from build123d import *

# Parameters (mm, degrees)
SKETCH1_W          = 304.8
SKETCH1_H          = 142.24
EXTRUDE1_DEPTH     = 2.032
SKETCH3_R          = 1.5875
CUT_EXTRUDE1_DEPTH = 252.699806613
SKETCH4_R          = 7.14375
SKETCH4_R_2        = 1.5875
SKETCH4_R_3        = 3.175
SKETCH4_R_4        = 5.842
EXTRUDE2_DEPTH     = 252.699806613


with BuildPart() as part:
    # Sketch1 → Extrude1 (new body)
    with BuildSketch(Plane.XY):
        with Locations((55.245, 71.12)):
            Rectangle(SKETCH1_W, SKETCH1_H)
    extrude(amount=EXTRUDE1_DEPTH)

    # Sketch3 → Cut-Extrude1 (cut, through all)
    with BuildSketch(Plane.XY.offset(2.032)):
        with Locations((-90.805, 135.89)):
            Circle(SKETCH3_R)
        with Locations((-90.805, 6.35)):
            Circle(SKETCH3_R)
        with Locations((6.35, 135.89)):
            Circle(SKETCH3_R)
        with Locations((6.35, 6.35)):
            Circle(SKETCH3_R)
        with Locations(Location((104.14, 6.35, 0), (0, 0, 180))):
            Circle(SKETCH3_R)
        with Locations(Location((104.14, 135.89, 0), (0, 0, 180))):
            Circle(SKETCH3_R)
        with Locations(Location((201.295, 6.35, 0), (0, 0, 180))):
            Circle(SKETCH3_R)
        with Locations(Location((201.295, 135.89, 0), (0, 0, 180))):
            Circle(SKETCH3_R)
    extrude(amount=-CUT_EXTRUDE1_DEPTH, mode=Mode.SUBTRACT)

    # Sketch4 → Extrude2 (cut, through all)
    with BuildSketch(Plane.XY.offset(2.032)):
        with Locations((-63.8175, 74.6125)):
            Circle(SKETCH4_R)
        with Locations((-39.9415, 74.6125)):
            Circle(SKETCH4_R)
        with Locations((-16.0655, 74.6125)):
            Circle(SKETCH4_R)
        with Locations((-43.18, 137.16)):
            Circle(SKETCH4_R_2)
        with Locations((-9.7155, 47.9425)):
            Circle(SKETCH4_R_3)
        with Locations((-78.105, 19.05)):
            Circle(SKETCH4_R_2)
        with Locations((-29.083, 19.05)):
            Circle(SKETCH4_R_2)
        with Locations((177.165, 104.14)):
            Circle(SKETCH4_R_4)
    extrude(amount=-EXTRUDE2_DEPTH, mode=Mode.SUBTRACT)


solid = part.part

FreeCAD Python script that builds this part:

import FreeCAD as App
import Part
import Sketcher
Q = App.Units.Quantity

doc = App.newDocument("Part")
body = doc.addObject("PartDesign::Body", "Body")

sketch1 = doc.addObject("Sketcher::SketchObject", "Sketch")
body.addObject(sketch1)
sketch1.AttachmentSupport = (doc.XY_Plane, [""])
sketch1.MapMode = "FlatFace"
sketch1.addGeometry(Part.LineSegment(App.Vector(-97.155, 142.24, 0), App.Vector(-97.155, 0, 0)), False)
sketch1.addGeometry(Part.LineSegment(App.Vector(-97.155, 0, 0), App.Vector(207.645, 0, 0)), False)
sketch1.addGeometry(Part.LineSegment(App.Vector(207.645, 0, 0), App.Vector(207.645, 142.24, 0)), False)
sketch1.addGeometry(Part.LineSegment(App.Vector(207.645, 142.24, 0), App.Vector(-97.155, 142.24, 0)), False)
sketch1.addConstraint(Sketcher.Constraint("Coincident", 0, 2, 1, 1))
sketch1.addConstraint(Sketcher.Constraint("Coincident", 1, 2, 2, 1))
sketch1.addConstraint(Sketcher.Constraint("Coincident", 2, 2, 3, 1))
sketch1.addConstraint(Sketcher.Constraint("Coincident", 3, 2, 0, 1))
sketch1.addConstraint(Sketcher.Constraint("Vertical", 0))
sketch1.addConstraint(Sketcher.Constraint("Horizontal", 1))
sketch1.addConstraint(Sketcher.Constraint("Vertical", 2))
sketch1.addConstraint(Sketcher.Constraint("Horizontal", 3))
sketch1.addConstraint(Sketcher.Constraint("PointOnObject", 0, 2, -1))
sketch1.addConstraint(Sketcher.Constraint("DistanceX", 1, 1, 1, 2, Q("12 in")))
sketch1.addConstraint(Sketcher.Constraint("DistanceY", 0, 2, 0, 1, Q("5.6 in")))
sketch1.addConstraint(Sketcher.Constraint("DistanceX", 0, 2, -1, 1, Q("3.825 in")))
pad1 = doc.addObject("PartDesign::Pad", "Pad")
body.addObject(pad1)
pad1.Profile = sketch1
pad1.Length = Q("0.08 in")

sketch2 = doc.addObject("Sketcher::SketchObject", "Sketch001")
body.addObject(sketch2)
sketch2.AttachmentSupport = (doc.XY_Plane, [""])
sketch2.MapMode = "FlatFace"
sketch2.AttachmentOffset = App.Placement(App.Vector(0, 0, 0.08 * 25.4), App.Rotation())
sketch2.addGeometry(Part.Circle(App.Vector(-90.805, 135.89, 0), App.Vector(0, 0, 1), 1.5875), False)
sketch2.addGeometry(Part.Circle(App.Vector(-90.805, 6.35, 0), App.Vector(0, 0, 1), 1.5875), False)
sketch2.addGeometry(Part.Circle(App.Vector(6.35, 135.89, 0), App.Vector(0, 0, 1), 1.5875), False)
sketch2.addGeometry(Part.Circle(App.Vector(6.35, 6.35, 0), App.Vector(0, 0, 1), 1.5875), False)
sketch2.addGeometry(Part.Circle(App.Vector(104.14, 6.35, 0), App.Vector(0, 0, 1), 1.5875), False)
sketch2.addGeometry(Part.Circle(App.Vector(104.14, 135.89, 0), App.Vector(0, 0, 1), 1.5875), False)
sketch2.addGeometry(Part.Circle(App.Vector(201.295, 6.35, 0), App.Vector(0, 0, 1), 1.5875), False)
sketch2.addGeometry(Part.Circle(App.Vector(201.295, 135.89, 0), App.Vector(0, 0, 1), 1.5875), False)
sketch2.addConstraint(Sketcher.Constraint("Equal", 0, 1))
sketch2.addConstraint(Sketcher.Constraint("Equal", 1, 2))
sketch2.addConstraint(Sketcher.Constraint("Equal", 2, 3))
sketch2.addConstraint(Sketcher.Constraint("Equal", 3, 4))
sketch2.addConstraint(Sketcher.Constraint("Equal", 4, 5))
sketch2.addConstraint(Sketcher.Constraint("Equal", 5, 6))
sketch2.addConstraint(Sketcher.Constraint("Equal", 6, 7))
sketch2.addConstraint(Sketcher.Constraint("Horizontal", 0, 3, 2, 3))
sketch2.addConstraint(Sketcher.Constraint("Horizontal", 1, 3, 3, 3))
sketch2.addConstraint(Sketcher.Constraint("Horizontal", 3, 3, 4, 3))
sketch2.addConstraint(Sketcher.Constraint("Horizontal", 2, 3, 5, 3))
sketch2.addConstraint(Sketcher.Constraint("Horizontal", 4, 3, 6, 3))
sketch2.addConstraint(Sketcher.Constraint("Horizontal", 5, 3, 7, 3))
sketch2.addConstraint(Sketcher.Constraint("Vertical", 0, 3, 1, 3))
sketch2.addConstraint(Sketcher.Constraint("Vertical", 2, 3, 3, 3))
sketch2.addConstraint(Sketcher.Constraint("Vertical", 4, 3, 5, 3))
sketch2.addConstraint(Sketcher.Constraint("Vertical", 6, 3, 7, 3))
sketch2.addConstraint(Sketcher.Constraint("Diameter", 0, Q("0.125 in")))
sketch2.addConstraint(Sketcher.Constraint("DistanceX", -1, 1, 4, 3, Q("4.1 in")))
sketch2.addConstraint(Sketcher.Constraint("DistanceY", 1, 3, 0, 3, Q("5.1 in")))
sketch2.addConstraint(Sketcher.Constraint("DistanceX", 1, 3, 6, 3, Q("11.5 in")))
sketch2.addConstraint(Sketcher.Constraint("DistanceY", -1, 1, 0, 3, Q("5.35 in")))
sketch2.addConstraint(Sketcher.Constraint("DistanceX", -1, 1, 2, 3, Q("0.25 in")))
sketch2.addConstraint(Sketcher.Constraint("DistanceX", 0, 3, -1, 1, Q("3.575 in")))
pocket1 = doc.addObject("PartDesign::Pocket", "Pocket")
body.addObject(pocket1)
pocket1.Profile = sketch2
pocket1.Type = "ThroughAll"

sketch3 = doc.addObject("Sketcher::SketchObject", "Sketch002")
body.addObject(sketch3)
sketch3.AttachmentSupport = (doc.XY_Plane, [""])
sketch3.MapMode = "FlatFace"
sketch3.AttachmentOffset = App.Placement(App.Vector(0, 0, 0.08 * 25.4), App.Rotation())
sketch3.addGeometry(Part.Circle(App.Vector(-63.8175, 74.6125, 0), App.Vector(0, 0, 1), 7.14375), False)
sketch3.addGeometry(Part.Circle(App.Vector(-39.9415, 74.6125, 0), App.Vector(0, 0, 1), 7.14375), False)
sketch3.addGeometry(Part.Circle(App.Vector(-16.0655, 74.6125, 0), App.Vector(0, 0, 1), 7.14375), False)
sketch3.addGeometry(Part.Circle(App.Vector(-43.18, 137.16, 0), App.Vector(0, 0, 1), 1.5875), False)
sketch3.addGeometry(Part.Circle(App.Vector(-9.7155, 47.9425, 0), App.Vector(0, 0, 1), 3.175), False)
sketch3.addGeometry(Part.Circle(App.Vector(-78.105, 19.05, 0), App.Vector(0, 0, 1), 1.5875), False)
sketch3.addGeometry(Part.Circle(App.Vector(-29.083, 19.05, 0), App.Vector(0, 0, 1), 1.5875), False)
sketch3.addGeometry(Part.Circle(App.Vector(177.165, 104.14, 0), App.Vector(0, 0, 1), 5.842), False)
sketch3.addConstraint(Sketcher.Constraint("Equal", 0, 1))
sketch3.addConstraint(Sketcher.Constraint("Equal", 1, 2))
sketch3.addConstraint(Sketcher.Constraint("Equal", 3, 5))
sketch3.addConstraint(Sketcher.Constraint("Equal", 5, 6))
sketch3.addConstraint(Sketcher.Constraint("Horizontal", 0, 3, 1, 3))
sketch3.addConstraint(Sketcher.Constraint("Horizontal", 1, 3, 2, 3))
sketch3.addConstraint(Sketcher.Constraint("Horizontal", 5, 3, 6, 3))
sketch3.addConstraint(Sketcher.Constraint("Diameter", 4, Q("0.25 in")))
sketch3.addConstraint(Sketcher.Constraint("Diameter", 7, Q("0.46 in")))
sketch3.addConstraint(Sketcher.Constraint("Diameter", 0, Q("0.5625 in")))
sketch3.addConstraint(Sketcher.Constraint("Diameter", 3, Q("0.125 in")))
sketch3.addConstraint(Sketcher.Constraint("DistanceX", 3, 3, -1, 1, Q("1.7 in")))
sketch3.addConstraint(Sketcher.Constraint("DistanceY", -1, 1, 3, 3, Q("5.4 in")))
sketch3.addConstraint(Sketcher.Constraint("DistanceY", -1, 1, 7, 3, Q("4.1 in")))
sketch3.addConstraint(Sketcher.Constraint("DistanceY", -1, 1, 5, 3, Q("0.75 in")))
sketch3.addConstraint(Sketcher.Constraint("DistanceX", 0, 3, 1, 3, Q("0.94 in")))
sketch3.addConstraint(Sketcher.Constraint("DistanceX", 1, 3, 2, 3, Q("0.94 in")))
sketch3.addConstraint(Sketcher.Constraint("DistanceX", 2, 3, 4, 3, Q("0.25 in")))
sketch3.addConstraint(Sketcher.Constraint("DistanceY", 4, 3, 2, 3, Q("1.05 in")))
sketch3.addConstraint(Sketcher.Constraint("DistanceX", 5, 3, 6, 3, Q("1.93 in")))
sketch3.addConstraint(Sketcher.Constraint("DistanceX", 6, 3, 7, 3, Q("8.12 in")))
sketch3.addConstraint(Sketcher.Constraint("DistanceY", -1, 1, 0, 3, Q("2.9375 in")))
sketch3.addConstraint(Sketcher.Constraint("DistanceX", 5, 3, -1, 1, Q("3.075 in")))
sketch3.addConstraint(Sketcher.Constraint("DistanceX", 0, 3, 3, 3, Q("0.8125 in")))
pocket2 = doc.addObject("PartDesign::Pocket", "Pocket001")
body.addObject(pocket2)
pocket2.Profile = sketch3
pocket2.Type = "ThroughAll"

doc.recompute()
